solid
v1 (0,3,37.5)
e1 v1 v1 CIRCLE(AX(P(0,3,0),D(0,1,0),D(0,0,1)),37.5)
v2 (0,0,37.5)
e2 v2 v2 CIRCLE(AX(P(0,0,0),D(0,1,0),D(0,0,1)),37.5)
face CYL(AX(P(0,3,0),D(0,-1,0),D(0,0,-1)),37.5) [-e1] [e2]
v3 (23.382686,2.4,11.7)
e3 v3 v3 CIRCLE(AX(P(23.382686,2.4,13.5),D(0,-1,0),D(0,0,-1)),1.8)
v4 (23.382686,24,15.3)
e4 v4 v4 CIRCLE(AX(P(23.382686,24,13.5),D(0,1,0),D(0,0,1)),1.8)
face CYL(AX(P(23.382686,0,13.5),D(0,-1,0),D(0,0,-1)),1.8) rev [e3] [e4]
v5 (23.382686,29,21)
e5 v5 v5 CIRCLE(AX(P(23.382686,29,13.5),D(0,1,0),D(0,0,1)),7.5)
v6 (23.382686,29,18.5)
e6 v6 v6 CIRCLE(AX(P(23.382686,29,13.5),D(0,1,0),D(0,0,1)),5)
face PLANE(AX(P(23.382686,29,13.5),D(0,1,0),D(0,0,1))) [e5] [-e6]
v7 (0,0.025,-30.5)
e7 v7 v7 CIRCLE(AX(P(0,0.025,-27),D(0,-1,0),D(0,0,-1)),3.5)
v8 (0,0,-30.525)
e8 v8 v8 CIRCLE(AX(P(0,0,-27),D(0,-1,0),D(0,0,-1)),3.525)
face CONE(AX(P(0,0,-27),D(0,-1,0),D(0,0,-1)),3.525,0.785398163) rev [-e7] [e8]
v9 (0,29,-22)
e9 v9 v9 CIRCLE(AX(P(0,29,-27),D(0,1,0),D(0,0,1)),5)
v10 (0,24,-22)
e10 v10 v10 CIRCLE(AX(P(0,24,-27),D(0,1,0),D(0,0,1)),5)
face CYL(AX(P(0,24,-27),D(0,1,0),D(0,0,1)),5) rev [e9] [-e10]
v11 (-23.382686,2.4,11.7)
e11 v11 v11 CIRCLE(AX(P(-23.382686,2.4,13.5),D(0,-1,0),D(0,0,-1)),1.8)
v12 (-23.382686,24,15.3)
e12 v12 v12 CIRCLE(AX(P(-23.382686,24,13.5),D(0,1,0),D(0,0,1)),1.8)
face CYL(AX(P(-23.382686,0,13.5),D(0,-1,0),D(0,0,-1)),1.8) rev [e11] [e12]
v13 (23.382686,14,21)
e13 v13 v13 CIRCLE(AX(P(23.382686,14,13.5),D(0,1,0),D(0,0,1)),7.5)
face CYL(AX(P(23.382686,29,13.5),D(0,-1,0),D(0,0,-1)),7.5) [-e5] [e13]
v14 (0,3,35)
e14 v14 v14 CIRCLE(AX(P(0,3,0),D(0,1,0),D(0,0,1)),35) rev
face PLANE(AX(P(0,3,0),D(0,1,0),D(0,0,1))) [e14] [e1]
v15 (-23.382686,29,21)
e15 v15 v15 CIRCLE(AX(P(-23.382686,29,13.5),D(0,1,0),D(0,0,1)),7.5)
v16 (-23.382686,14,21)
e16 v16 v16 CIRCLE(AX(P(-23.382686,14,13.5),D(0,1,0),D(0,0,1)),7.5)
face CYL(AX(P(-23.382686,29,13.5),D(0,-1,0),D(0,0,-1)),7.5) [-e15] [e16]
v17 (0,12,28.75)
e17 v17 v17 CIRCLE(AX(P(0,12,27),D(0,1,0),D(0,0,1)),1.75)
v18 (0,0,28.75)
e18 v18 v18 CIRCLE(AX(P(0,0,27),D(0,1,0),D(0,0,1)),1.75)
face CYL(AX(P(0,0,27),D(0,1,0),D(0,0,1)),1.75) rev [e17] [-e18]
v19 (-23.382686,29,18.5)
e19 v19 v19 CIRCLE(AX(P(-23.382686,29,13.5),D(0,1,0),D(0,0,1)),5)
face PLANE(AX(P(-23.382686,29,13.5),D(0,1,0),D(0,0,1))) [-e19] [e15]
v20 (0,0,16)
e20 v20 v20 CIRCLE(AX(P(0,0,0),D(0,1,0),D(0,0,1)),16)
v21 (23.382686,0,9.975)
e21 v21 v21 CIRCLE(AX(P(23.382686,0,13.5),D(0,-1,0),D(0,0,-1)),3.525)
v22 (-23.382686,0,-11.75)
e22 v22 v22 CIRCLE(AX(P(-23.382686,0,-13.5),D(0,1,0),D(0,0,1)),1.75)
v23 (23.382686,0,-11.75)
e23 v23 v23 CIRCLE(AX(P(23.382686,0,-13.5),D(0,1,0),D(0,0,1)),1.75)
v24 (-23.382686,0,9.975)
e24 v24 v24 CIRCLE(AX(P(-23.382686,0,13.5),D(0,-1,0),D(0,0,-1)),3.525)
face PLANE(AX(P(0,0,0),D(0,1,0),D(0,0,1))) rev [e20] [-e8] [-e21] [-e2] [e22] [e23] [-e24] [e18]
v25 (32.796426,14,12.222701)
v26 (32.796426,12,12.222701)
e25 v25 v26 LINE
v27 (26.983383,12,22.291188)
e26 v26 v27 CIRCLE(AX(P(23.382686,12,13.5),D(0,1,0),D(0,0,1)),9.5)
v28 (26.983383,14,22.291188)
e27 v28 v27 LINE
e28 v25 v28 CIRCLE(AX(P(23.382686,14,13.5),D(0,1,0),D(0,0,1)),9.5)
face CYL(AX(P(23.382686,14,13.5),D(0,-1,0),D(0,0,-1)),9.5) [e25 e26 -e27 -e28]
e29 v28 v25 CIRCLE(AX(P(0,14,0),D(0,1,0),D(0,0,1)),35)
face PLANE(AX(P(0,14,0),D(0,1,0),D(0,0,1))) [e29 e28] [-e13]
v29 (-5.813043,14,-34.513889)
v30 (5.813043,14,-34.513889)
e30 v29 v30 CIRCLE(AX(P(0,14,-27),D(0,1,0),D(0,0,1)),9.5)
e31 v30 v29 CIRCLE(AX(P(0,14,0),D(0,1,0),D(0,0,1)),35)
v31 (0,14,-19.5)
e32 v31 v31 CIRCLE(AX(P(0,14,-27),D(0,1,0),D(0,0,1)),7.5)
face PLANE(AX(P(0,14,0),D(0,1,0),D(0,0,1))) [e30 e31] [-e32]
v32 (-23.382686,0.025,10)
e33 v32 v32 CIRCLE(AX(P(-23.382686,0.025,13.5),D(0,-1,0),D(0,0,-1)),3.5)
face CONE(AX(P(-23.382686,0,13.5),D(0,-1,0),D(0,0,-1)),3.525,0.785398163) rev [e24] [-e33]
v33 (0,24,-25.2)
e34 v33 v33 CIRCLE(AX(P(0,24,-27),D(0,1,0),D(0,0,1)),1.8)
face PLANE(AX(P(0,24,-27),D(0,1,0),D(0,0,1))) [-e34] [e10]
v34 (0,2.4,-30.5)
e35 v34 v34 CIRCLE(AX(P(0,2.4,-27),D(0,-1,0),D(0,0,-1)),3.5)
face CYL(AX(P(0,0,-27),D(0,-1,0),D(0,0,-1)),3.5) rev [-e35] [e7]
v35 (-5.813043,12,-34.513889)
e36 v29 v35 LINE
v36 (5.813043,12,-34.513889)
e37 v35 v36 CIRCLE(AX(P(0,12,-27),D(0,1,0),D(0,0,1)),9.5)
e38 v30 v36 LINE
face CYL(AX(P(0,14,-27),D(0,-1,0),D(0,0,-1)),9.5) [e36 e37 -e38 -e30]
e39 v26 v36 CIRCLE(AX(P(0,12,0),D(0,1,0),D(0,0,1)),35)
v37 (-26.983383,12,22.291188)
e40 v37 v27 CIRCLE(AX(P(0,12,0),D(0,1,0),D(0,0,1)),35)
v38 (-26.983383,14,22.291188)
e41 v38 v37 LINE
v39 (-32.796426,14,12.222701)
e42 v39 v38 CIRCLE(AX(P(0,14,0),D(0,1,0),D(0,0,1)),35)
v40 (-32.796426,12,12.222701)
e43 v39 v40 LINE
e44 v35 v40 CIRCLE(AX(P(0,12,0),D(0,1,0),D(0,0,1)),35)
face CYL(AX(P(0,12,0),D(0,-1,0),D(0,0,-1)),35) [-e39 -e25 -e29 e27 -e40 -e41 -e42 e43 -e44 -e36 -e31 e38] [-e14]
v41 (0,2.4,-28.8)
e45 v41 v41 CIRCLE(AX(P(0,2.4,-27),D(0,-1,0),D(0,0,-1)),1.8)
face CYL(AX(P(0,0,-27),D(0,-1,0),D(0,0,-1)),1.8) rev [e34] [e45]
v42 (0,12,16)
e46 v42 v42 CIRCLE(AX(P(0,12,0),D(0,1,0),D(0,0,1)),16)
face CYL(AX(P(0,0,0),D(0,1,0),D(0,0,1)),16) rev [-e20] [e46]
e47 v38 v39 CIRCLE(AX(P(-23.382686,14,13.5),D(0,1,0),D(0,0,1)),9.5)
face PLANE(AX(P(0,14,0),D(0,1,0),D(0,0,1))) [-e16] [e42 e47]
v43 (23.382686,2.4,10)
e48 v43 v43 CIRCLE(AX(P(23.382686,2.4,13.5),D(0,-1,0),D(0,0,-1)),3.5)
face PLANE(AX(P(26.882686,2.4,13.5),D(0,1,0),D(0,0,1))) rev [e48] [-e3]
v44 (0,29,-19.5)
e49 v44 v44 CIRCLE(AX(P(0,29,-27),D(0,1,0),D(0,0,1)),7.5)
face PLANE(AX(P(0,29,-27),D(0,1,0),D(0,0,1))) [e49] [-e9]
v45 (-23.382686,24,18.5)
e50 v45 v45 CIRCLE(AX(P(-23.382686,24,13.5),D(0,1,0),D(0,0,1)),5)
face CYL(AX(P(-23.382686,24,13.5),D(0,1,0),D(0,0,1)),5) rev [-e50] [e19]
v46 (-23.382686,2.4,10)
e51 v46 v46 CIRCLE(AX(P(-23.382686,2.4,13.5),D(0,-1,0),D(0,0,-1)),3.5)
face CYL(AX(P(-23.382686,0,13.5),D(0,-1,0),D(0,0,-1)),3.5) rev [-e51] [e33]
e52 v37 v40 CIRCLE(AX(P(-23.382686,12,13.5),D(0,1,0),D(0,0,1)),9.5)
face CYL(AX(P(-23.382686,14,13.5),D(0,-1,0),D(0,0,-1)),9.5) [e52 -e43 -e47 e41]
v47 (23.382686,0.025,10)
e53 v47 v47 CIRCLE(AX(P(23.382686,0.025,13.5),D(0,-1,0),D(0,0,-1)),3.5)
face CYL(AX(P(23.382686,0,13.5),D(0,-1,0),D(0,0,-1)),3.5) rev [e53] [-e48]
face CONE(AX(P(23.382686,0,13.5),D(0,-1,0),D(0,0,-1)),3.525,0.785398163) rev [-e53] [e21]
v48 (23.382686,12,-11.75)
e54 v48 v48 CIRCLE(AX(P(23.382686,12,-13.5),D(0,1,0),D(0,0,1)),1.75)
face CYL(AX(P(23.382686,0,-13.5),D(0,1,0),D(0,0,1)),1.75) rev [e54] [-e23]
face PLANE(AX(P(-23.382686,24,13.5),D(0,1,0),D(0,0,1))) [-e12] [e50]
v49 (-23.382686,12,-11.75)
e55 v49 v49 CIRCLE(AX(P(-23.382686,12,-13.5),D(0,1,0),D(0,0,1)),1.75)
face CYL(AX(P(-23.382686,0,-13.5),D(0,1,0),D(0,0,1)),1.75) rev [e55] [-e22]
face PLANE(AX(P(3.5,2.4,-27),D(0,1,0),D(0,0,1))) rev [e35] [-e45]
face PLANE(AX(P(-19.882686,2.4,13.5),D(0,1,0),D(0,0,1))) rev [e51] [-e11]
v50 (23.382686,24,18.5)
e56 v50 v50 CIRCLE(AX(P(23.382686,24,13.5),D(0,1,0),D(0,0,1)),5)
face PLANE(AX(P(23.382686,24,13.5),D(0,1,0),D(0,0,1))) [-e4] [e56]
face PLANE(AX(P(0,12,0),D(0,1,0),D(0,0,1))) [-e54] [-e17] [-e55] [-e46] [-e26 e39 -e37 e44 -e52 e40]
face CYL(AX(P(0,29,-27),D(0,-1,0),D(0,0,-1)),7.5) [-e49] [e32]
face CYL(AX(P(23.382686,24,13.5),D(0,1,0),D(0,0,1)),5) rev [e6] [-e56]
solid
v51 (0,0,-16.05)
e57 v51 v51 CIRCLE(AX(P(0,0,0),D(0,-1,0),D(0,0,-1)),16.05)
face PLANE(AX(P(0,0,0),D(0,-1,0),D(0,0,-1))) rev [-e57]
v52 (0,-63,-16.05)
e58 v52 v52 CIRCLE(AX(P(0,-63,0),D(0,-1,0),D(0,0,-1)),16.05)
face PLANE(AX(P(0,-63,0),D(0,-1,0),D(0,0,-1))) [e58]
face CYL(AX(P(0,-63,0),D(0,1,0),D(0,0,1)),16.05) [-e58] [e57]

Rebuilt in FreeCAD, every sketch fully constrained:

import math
import FreeCAD as App
import Part
import Sketcher
Q = App.Units.Quantity

doc = App.newDocument("Part")
body = doc.addObject("PartDesign::Body", "Body")

sketch1 = body.newObject("Sketcher::SketchObject", "Sketch")
sketch1.AttachmentSupport = (doc.getObject("XZ_Plane"), [""])
sketch1.MapMode = "FlatFace"
sketch1.addGeometry(Part.Circle(App.Vector(0, 0, 0), App.Vector(0, 0, 1), 38), False)
sketch1.addConstraint([
    Sketcher.Constraint("Coincident", 0, 3, -1, 1),
    Sketcher.Constraint("Diameter", 0, 75.0),
])
pad1 = body.newObject("PartDesign::Pad", "Pad")
pad1.Profile = sketch1
pad1.Length = 3
pad1.Reversed = True

sketch2 = body.newObject("Sketcher::SketchObject", "Sketch001")
sketch2.AttachmentSupport = (doc.getObject("XZ_Plane"), [""])
sketch2.MapMode = "FlatFace"
sketch2.addGeometry(Part.Circle(App.Vector(0, 0, 0), App.Vector(0, 0, 1), 35), False)
sketch2.addConstraint([
    Sketcher.Constraint("Coincident", 0, 3, -1, 1),
    Sketcher.Constraint("Diameter", 0, 70.0),
])
pad2 = body.newObject("PartDesign::Pad", "Pad001")
pad2.Profile = sketch2
pad2.Length = 12
pad2.Reversed = True

sketch3 = body.newObject("Sketcher::SketchObject", "Sketch002")
sketch3.AttachmentSupport = (doc.getObject("XZ_Plane"), [""])
sketch3.MapMode = "FlatFace"
sketch3.AttachmentOffset = App.Placement(App.Vector(0, 0, -12), App.Rotation())
sketch3.addGeometry(Part.Circle(App.Vector(0, 0, 0), App.Vector(0, 0, 1), 16), False)
sketch3.addConstraint([
    Sketcher.Constraint("Coincident", 0, 3, -1, 1),
    Sketcher.Constraint("Diameter", 0, 32.0),
])
pocket1 = body.newObject("PartDesign::Pocket", "Pocket")
pocket1.Profile = sketch3
pocket1.Type = "ThroughAll"
pocket1.Reversed = True

sketch4 = body.newObject("Sketcher::SketchObject", "Sketch003")
sketch4.AttachmentSupport = (doc.getObject("XZ_Plane"), [""])
sketch4.MapMode = "FlatFace"
sketch4.AttachmentOffset = App.Placement(App.Vector(0, 0, -12), App.Rotation())
sketch4.addGeometry([
    Part.ArcOfCircle(Part.Circle(App.Vector(0, 0, 0), App.Vector(0, 0, 1), 35), math.radians(-99.56), math.radians(-80.44)),
    Part.ArcOfCircle(Part.Circle(App.Vector(0, -27, 0), App.Vector(0, 0, 1), 10), math.radians(-52), math.radians(232)),
    Part.ArcOfCircle(Part.Circle(App.Vector(-23, 14, 0), App.Vector(0, 0, 1), 10), math.radians(-172), math.radians(112)),
    Part.ArcOfCircle(Part.Circle(App.Vector(0, 0, 0), App.Vector(0, 0, 1), 35), math.radians(140.44), math.radians(159.56)),
    Part.ArcOfCircle(Part.Circle(App.Vector(0, 0, 0), App.Vector(0, 0, 1), 35), math.radians(20.44), math.radians(39.56)),
    Part.ArcOfCircle(Part.Circle(App.Vector(23, 14, 0), App.Vector(0, 0, 1), 10), math.radians(68), math.radians(352)),
], False)
sketch4.addConstraint([
    Sketcher.Constraint("Coincident", 0, 1, 1, 2),
    Sketcher.Constraint("Coincident", 1, 1, 0, 2),
    Sketcher.Constraint("Coincident", 2, 1, 3, 2),
    Sketcher.Constraint("Coincident", 3, 1, 2, 2),
    Sketcher.Constraint("Coincident", 4, 1, 5, 2),
    Sketcher.Constraint("Coincident", 5, 1, 4, 2),
    Sketcher.Constraint("Coincident", 0, 3, -1, 1),
    Sketcher.Constraint("Coincident", 3, 3, -1, 1),
    Sketcher.Constraint("Coincident", 4, 3, -1, 1),
    Sketcher.Constraint("Equal", 1, 2),
    Sketcher.Constraint("Equal", 0, 3),
    Sketcher.Constraint("Equal", 3, 4),
    Sketcher.Constraint("Equal", 2, 5),
    Sketcher.Constraint("Symmetric", 2, 3, 5, 3, -2),
    Sketcher.Constraint("PointOnObject", 1, 3, -2),
    Sketcher.Constraint("Radius", 0, 35.0),
    Sketcher.Constraint("Radius", 1, 9.5),
    Sketcher.Constraint("DistanceY", 1, 3, -1, 1, 27.0),
    Sketcher.Constraint("DistanceY", -1, 1, 2, 3, 13.5),
    Sketcher.Constraint("DistanceY", -1, 1, 2, 1, 12.222701),
])
pad3 = body.newObject("PartDesign::Pad", "Pad002")
pad3.Profile = sketch4
pad3.Length = 2
pad3.Reversed = True

sketch5 = body.newObject("Sketcher::SketchObject", "Sketch004")
sketch5.AttachmentSupport = (doc.getObject("XZ_Plane"), [""])
sketch5.MapMode = "FlatFace"
sketch5.AttachmentOffset = App.Placement(App.Vector(0, 0, -14), App.Rotation())
sketch5.addGeometry([
    Part.Circle(App.Vector(0, -27, 0), App.Vector(0, 0, 1), 8),
    Part.Circle(App.Vector(23, 14, 0), App.Vector(0, 0, 1), 8),
    Part.Circle(App.Vector(-23, 14, 0), App.Vector(0, 0, 1), 8),
], False)
sketch5.addConstraint([
    Sketcher.Constraint("Equal", 0, 1),
    Sketcher.Constraint("Equal", 1, 2),
    Sketcher.Constraint("Symmetric", 1, 3, 2, 3, -2),
    Sketcher.Constraint("PointOnObject", 0, 3, -2),
    Sketcher.Constraint("Diameter", 0, 15.0),
    Sketcher.Constraint("DistanceY", 0, 3, -1, 1, 27.0),
    Sketcher.Constraint("DistanceY", -1, 1, 1, 3, 13.5),
    Sketcher.Constraint("DistanceX", 2, 3, 1, 3, 46.765372),
])
pad4 = body.newObject("PartDesign::Pad", "Pad003")
pad4.Profile = sketch5
pad4.Length = 15
pad4.Reversed = True

sketch6 = body.newObject("Sketcher::SketchObject", "Sketch005")
sketch6.AttachmentSupport = (doc.getObject("XZ_Plane"), [""])
sketch6.MapMode = "FlatFace"
sketch6.AttachmentOffset = App.Placement(App.Vector(0, 0, -29), App.Rotation())
sketch6.addGeometry([
    Part.Circle(App.Vector(0, -27, 0), App.Vector(0, 0, 1), 5),
    Part.Circle(App.Vector(23, 14, 0), App.Vector(0, 0, 1), 5),
    Part.Circle(App.Vector(-23, 14, 0), App.Vector(0, 0, 1), 5),
], False)
sketch6.addConstraint([
    Sketcher.Constraint("Equal", 0, 1),
    Sketcher.Constraint("Equal", 1, 2),
    Sketcher.Constraint("Symmetric", 1, 3, 2, 3, -2),
    Sketcher.Constraint("PointOnObject", 0, 3, -2),
    Sketcher.Constraint("Diameter", 0, 10.0),
    Sketcher.Constraint("DistanceY", 0, 3, -1, 1, 27.0),
    Sketcher.Constraint("DistanceY", -1, 1, 1, 3, 13.5),
    Sketcher.Constraint("DistanceX", 2, 3, 1, 3, 46.765372),
])
pocket2 = body.newObject("PartDesign::Pocket", "Pocket001")
pocket2.Profile = sketch6
pocket2.Length = 5
pocket2.Reversed = True

sketch7 = body.newObject("Sketcher::SketchObject", "Sketch006")
sketch7.AttachmentSupport = (doc.getObject("YZ_Plane"), [""])
sketch7.MapMode = "FlatFace"
sketch7.addGeometry([
    Part.LineSegment(App.Vector(29, -27, 0), App.Vector(0, -27, 0)),
    Part.LineSegment(App.Vector(0, -27, 0), App.Vector(0, -30.525, 0)),
    Part.LineSegment(App.Vector(0, -30.525, 0), App.Vector(0.025, -30.5, 0)),
    Part.LineSegment(App.Vector(0.025, -30.5, 0), App.Vector(2.4, -30.5, 0)),
    Part.LineSegment(App.Vector(2.4, -30.5, 0), App.Vector(2.4, -28.8, 0)),
    Part.LineSegment(App.Vector(2.4, -28.8, 0), App.Vector(29, -28.8, 0)),
    Part.LineSegment(App.Vector(29, -28.8, 0), App.Vector(29, -27, 0)),
], False)
sketch7.addGeometry(Part.LineSegment(App.Vector(0, -27, 0), App.Vector(29, -27, 0)), True)
sketch7.addConstraint([
    Sketcher.Constraint("Coincident", 0, 2, 1, 1),
    Sketcher.Constraint("Coincident", 1, 2, 2, 1),
    Sketcher.Constraint("Coincident", 2, 2, 3, 1),
    Sketcher.Constraint("Coincident", 3, 2, 4, 1),
    Sketcher.Constraint("Coincident", 4, 2, 5, 1),
    Sketcher.Constraint("Coincident", 5, 2, 6, 1),
    Sketcher.Constraint("Coincident", 6, 2, 0, 1),
    Sketcher.Constraint("Horizontal", 0),
    Sketcher.Constraint("Vertical", 1),
    Sketcher.Constraint("Horizontal", 3),
    Sketcher.Constraint("Vertical", 4),
    Sketcher.Constraint("Horizontal", 5),
    Sketcher.Constraint("Vertical", 6),
    Sketcher.Constraint("Horizontal", 7),
    Sketcher.Constraint("Coincident", 7, 1, 0, 2),
    Sketcher.Constraint("PointOnObject", 0, 2, -2),
    Sketcher.Constraint("Vertical", 5, 2, 7, 2),
    Sketcher.Constraint("DistanceX", 0, 2, 0, 1, 29.0),
    Sketcher.Constraint("Angle", 2, Q("45 deg")),
    Sketcher.Constraint("DistanceX", 5, 1, 5, 2, 26.6),
    Sketcher.Constraint("DistanceY", 4, 1, 4, 2, 1.7),
    Sketcher.Constraint("DistanceY", 6, 1, 6, 2, 1.8),
    Sketcher.Constraint("DistanceY", 0, 2, -1, 1, 27.0),
    Sketcher.Constraint("DistanceX", 3, 1, 3, 2, 2.375),
])
groove = body.newObject("PartDesign::Groove", "Groove")
groove.Profile = sketch7
groove.ReferenceAxis = (sketch7, ["Axis0"])
groove.Angle = 360
doc.recompute()

datumline = body.newObject("PartDesign::Line", "DatumLine")
datumline.Placement = App.Placement(App.Vector(0, 0, 0), App.Rotation(App.Vector(0, 0, 1), App.Vector(-0.5, 0, 0.866025404)))
linearpattern = body.newObject("PartDesign::LinearPattern", "LinearPattern")
linearpattern.Originals = [groove]
linearpattern.Direction = (datumline, [""])
linearpattern.Mode = "offset"
linearpattern.Offset = 46.765372
linearpattern.Occurrences = 2
body.Tip = linearpattern
doc.recompute()

datumline2 = body.newObject("PartDesign::Line", "DatumLine001")
datumline2.Placement = App.Placement(App.Vector(0, 0, 0), App.Rotation(App.Vector(0, 0, 1), App.Vector(0.5, 0, 0.866025404)))
linearpattern2 = body.newObject("PartDesign::LinearPattern", "LinearPattern001")
linearpattern2.Originals = [groove]
linearpattern2.Direction = (datumline2, [""])
linearpattern2.Mode = "offset"
linearpattern2.Offset = 46.765372
linearpattern2.Occurrences = 2
body.Tip = linearpattern2

sketch8 = body.newObject("Sketcher::SketchObject", "Sketch007")
sketch8.AttachmentSupport = (doc.getObject("XZ_Plane"), [""])
sketch8.MapMode = "FlatFace"
sketch8.AttachmentOffset = App.Placement(App.Vector(0, 0, -12), App.Rotation())
sketch8.addGeometry([
    Part.Circle(App.Vector(23.4, -13.5, 0), App.Vector(0, 0, 1), 1.8),
    Part.Circle(App.Vector(0, 27, 0), App.Vector(0, 0, 1), 1.8),
    Part.Circle(App.Vector(-23.4, -13.5, 0), App.Vector(0, 0, 1), 1.8),
], False)
sketch8.addConstraint([
    Sketcher.Constraint("Equal", 0, 1),
    Sketcher.Constraint("Equal", 1, 2),
    Sketcher.Constraint("Symmetric", 0, 3, 2, 3, -2),
    Sketcher.Constraint("PointOnObject", 1, 3, -2),
    Sketcher.Constraint("Diameter", 0, 3.5),
    Sketcher.Constraint("DistanceY", -1, 1, 1, 3, 27.0),
    Sketcher.Constraint("DistanceY", 0, 3, -1, 1, 13.5),
    Sketcher.Constraint("DistanceX", 2, 3, 0, 3, 46.765372),
])
pocket3 = body.newObject("PartDesign::Pocket", "Pocket002")
pocket3.Profile = sketch8
pocket3.Type = "ThroughAll"
pocket3.Reversed = True
body2 = doc.addObject("PartDesign::Body", "Body001")

sketch9 = body2.newObject("Sketcher::SketchObject", "Sketch008")
sketch9.AttachmentSupport = (doc.getObject("XZ_Plane001"), [""])
sketch9.MapMode = "FlatFace"
sketch9.addGeometry(Part.Circle(App.Vector(0, 0, 0), App.Vector(0, 0, 1), 16), False)
sketch9.addConstraint([
    Sketcher.Constraint("Coincident", 0, 3, -1, 1),
    Sketcher.Constraint("Diameter", 0, 32.1),
])
pad5 = body2.newObject("PartDesign::Pad", "Pad004")
pad5.Profile = sketch9
pad5.Length = 63

doc.recompute()
